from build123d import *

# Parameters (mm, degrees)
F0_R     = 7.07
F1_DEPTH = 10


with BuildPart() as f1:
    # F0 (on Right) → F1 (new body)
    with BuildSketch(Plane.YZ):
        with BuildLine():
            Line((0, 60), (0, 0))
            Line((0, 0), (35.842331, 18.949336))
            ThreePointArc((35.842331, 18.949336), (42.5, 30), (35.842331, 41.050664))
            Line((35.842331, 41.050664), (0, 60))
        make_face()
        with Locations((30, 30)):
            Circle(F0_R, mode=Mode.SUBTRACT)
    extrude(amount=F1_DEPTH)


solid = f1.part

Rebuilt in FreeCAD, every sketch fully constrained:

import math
import FreeCAD as App
import Part
import Sketcher
from FreeCAD import Vector

doc = App.newDocument("Part")
body = doc.addObject("PartDesign::Body", "Body")

# Sketch on YZ plane
sketch1 = body.newObject("Sketcher::SketchObject", "Sketch")
sketch1.AttachmentSupport = (doc.getObject("YZ_Plane"), [""])
sketch1.MapMode = "FlatFace"
sketch1.addGeometry(Part.LineSegment(Vector(0, 60, 0), Vector(0, 0, 0)), False)
sketch1.addGeometry(Part.LineSegment(Vector(0, 0, 0), Vector(36, 19, 0)), False)
sketch1.addGeometry(Part.ArcOfCircle(Part.Circle(Vector(30, 30, 0), Vector(0, 0, 1), 13), math.radians(-62), math.radians(62)), False)
sketch1.addGeometry(Part.LineSegment(Vector(36, 41, 0), Vector(0, 60, 0)), False)
sketch1.addGeometry(Part.Circle(Vector(30, 30, 0), Vector(0, 0, 1), 7), False)
sketch1.addConstraint(Sketcher.Constraint("Coincident", 0, 2, 1, 1))
sketch1.addConstraint(Sketcher.Constraint("Tangent", 1, 2, 2, 1))
sketch1.addConstraint(Sketcher.Constraint("Tangent", 2, 2, 3, 1))
sketch1.addConstraint(Sketcher.Constraint("Coincident", 3, 2, 0, 1))
sketch1.addConstraint(Sketcher.Constraint("Vertical", 0))
sketch1.addConstraint(Sketcher.Constraint("Coincident", 0, 2, -1, 1))
sketch1.addConstraint(Sketcher.Constraint("Coincident", 4, 3, 2, 3))
sketch1.addConstraint(Sketcher.Constraint("Vertical", 1, 2, 2, 2))
sketch1.addConstraint(Sketcher.Constraint("Radius", 2, 12.5))
sketch1.addConstraint(Sketcher.Constraint("Diameter", 4, 14.14))
sketch1.addConstraint(Sketcher.Constraint("DistanceY", 0, 2, 0, 1, 60.0))
sketch1.addConstraint(Sketcher.Constraint("DistanceX", -1, 1, 2, 3, 30.0))
pad1 = body.newObject("PartDesign::Pad", "Pad")
pad1.Profile = sketch1
pad1.Length = 10

doc.recompute()
